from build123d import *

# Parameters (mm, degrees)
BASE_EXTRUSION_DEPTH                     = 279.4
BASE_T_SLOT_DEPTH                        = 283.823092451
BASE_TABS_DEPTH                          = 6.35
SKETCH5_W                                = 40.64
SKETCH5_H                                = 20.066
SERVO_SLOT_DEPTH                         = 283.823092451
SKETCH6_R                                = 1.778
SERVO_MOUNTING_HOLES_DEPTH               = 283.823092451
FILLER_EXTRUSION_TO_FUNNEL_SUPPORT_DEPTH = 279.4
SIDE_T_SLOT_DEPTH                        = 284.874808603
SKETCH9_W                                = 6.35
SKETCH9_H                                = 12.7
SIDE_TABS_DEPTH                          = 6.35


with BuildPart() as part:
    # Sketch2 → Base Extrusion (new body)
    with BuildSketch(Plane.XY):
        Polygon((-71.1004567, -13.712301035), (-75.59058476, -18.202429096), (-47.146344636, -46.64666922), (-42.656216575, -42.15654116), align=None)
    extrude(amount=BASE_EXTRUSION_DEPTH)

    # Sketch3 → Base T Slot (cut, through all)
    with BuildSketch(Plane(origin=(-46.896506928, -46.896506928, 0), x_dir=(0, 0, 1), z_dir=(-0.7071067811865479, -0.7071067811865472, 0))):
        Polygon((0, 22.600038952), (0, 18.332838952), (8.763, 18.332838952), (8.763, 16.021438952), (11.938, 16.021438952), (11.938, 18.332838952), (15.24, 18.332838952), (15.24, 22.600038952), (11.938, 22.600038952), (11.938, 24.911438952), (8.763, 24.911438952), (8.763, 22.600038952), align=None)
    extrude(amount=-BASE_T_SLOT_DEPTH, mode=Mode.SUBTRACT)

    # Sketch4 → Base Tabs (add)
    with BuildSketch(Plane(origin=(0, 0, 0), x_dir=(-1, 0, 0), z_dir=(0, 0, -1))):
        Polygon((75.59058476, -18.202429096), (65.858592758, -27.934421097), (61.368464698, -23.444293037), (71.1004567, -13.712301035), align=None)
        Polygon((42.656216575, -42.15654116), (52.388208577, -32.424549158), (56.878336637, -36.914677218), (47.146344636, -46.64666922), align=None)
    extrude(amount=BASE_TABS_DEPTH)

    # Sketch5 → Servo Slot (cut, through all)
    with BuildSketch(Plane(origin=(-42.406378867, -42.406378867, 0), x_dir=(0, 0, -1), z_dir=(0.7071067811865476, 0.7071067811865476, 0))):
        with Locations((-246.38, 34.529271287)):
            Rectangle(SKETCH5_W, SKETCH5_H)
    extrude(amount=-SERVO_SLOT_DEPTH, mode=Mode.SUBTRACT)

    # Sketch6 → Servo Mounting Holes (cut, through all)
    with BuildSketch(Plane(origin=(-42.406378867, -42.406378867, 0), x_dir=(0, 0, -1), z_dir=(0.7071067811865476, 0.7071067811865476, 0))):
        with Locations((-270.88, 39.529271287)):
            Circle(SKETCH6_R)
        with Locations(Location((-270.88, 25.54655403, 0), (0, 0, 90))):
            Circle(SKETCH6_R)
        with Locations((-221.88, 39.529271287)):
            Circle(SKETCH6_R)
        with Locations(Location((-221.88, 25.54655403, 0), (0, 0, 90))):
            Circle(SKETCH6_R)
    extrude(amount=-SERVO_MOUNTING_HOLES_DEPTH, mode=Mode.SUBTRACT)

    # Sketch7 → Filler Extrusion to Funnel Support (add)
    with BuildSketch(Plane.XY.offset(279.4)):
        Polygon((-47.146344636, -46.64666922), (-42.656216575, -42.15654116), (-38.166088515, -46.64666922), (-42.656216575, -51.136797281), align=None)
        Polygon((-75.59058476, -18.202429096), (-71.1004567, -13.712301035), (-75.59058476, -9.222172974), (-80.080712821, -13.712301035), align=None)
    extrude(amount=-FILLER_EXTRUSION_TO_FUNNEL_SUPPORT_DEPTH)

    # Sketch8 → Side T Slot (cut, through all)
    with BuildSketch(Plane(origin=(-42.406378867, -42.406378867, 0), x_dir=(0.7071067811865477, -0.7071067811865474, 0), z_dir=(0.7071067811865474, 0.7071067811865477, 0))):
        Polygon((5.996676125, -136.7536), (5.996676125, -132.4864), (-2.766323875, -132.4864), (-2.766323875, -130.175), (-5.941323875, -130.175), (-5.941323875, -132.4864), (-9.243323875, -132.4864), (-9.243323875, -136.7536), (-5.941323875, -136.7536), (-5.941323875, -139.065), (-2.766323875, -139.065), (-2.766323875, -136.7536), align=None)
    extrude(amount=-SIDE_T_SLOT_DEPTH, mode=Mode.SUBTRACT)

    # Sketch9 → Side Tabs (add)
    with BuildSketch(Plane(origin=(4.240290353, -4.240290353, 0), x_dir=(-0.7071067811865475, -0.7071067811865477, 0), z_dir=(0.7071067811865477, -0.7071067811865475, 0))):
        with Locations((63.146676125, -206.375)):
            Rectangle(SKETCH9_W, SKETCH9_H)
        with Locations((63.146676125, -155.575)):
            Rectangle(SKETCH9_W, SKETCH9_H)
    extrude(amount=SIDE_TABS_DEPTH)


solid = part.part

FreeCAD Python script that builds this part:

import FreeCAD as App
import Part
import Sketcher
Q = App.Units.Quantity


def add_polygon(sketch, points):
    """Adds a closed chain of lines whose ends are joined by coincident constraints."""
    first, n = sketch.GeometryCount, len(points)
    for a, b in zip(points, points[1:] + points[:1]):
        sketch.addGeometry(Part.LineSegment(App.Vector(*a, 0), App.Vector(*b, 0)), False)
    for i in range(n):
        sketch.addConstraint(Sketcher.Constraint("Coincident", first + i, 2, first + (i + 1) % n, 1))

doc = App.newDocument("Part")
body = doc.addObject("PartDesign::Body", "Body")

# Sketch on XY plane
sketch1 = body.newObject("Sketcher::SketchObject", "Sketch")
sketch1.AttachmentSupport = (doc.getObject("XY_Plane"), [""])
sketch1.MapMode = "FlatFace"
add_polygon(sketch1, [(-71.100457, -13.712301), (-75.590585, -18.202429), (-47.146345, -46.646669), (-42.656217, -42.156541)])  # lines 0-3
sketch1.addConstraint([
    Sketcher.Constraint("Perpendicular", 0, 1),
    Sketcher.Constraint("Perpendicular", 1, 2),
    Sketcher.Constraint("Perpendicular", 2, 3),
    Sketcher.Constraint("Angle", 0, Q("-135 deg")),
    Sketcher.Constraint("Distance", 0, Q("0.25 in")),
    Sketcher.Constraint("DistanceY", 3, 2, -1, 1, Q("13.712301 mm")),
    Sketcher.Constraint("Distance", 1, Q("40.22623 mm")),
    Sketcher.Constraint("DistanceX", 0, 2, -1, 1, Q("75.590585 mm")),
])
pad1 = body.newObject("PartDesign::Pad", "Pad")
pad1.Profile = sketch1
pad1.Length = Q("11 in")

# Sketch on an angled plane
sketch2 = body.newObject("Sketcher::SketchObject", "Sketch001")
sketch2.Placement = App.Placement(App.Vector(-46.896507, -46.896507, 0), App.Rotation(App.Vector(0, 0, 1), App.Vector(-0.707106781, 0.707106781, 0), App.Vector(-0.707106781, -0.707106781, 0), "ZXY"))
add_polygon(sketch2, [(0, 22.600039), (0, 18.332839), (8.763, 18.332839), (8.763, 16.021439), (11.938, 16.021439), (11.938, 18.332839), (15.24, 18.332839), (15.24, 22.600039), (11.938, 22.600039), (11.938, 24.911439), (8.763, 24.911439), (8.763, 22.600039)])  # lines 0-11
sketch2.addConstraint([
    Sketcher.Constraint("Vertical", 0),
    Sketcher.Constraint("Horizontal", 1),
    Sketcher.Constraint("Vertical", 2),
    Sketcher.Constraint("Horizontal", 3),
    Sketcher.Constraint("Vertical", 4),
    Sketcher.Constraint("Horizontal", 5),
    Sketcher.Constraint("Vertical", 6),
    Sketcher.Constraint("Horizontal", 7),
    Sketcher.Constraint("Vertical", 8),
    Sketcher.Constraint("Horizontal", 9),
    Sketcher.Constraint("Vertical", 10),
    Sketcher.Constraint("Horizontal", 11),
    Sketcher.Constraint("PointOnObject", 0, 2, -2),
    Sketcher.Constraint("Horizontal", 1, 2, 4, 2),
    Sketcher.Constraint("Horizontal", 7, 2, 10, 2),
    Sketcher.Constraint("Vertical", 4, 2, 7, 2),
    Sketcher.Constraint("Vertical", 2, 2, 9, 2),
    Sketcher.Constraint("Equal", 4, 8),
    Sketcher.Constraint("DistanceX", 5, 1, 5, 2, Q("0.13 in")),
    Sketcher.Constraint("DistanceX", -1, 1, 5, 2, Q("0.6 in")),
    Sketcher.Constraint("DistanceX", 1, 1, 1, 2, Q("0.345 in")),
    Sketcher.Constraint("DistanceY", 0, 2, 0, 1, Q("0.168 in")),
    Sketcher.Constraint("DistanceY", 2, 2, 2, 1, Q("0.091 in")),
    Sketcher.Constraint("DistanceY", -1, 1, 0, 2, Q("18.332839 mm")),
])
pocket1 = body.newObject("PartDesign::Pocket", "Pocket")
pocket1.Profile = sketch2
pocket1.Type = "ThroughAll"

# Sketch on XY plane
sketch3 = body.newObject("Sketcher::SketchObject", "Sketch002")
sketch3.AttachmentSupport = (doc.getObject("XY_Plane"), [""])
sketch3.MapMode = "FlatFace"
add_polygon(sketch3, [(-65.858593, -27.934421), (-75.590585, -18.202429), (-71.100457, -13.712301), (-61.368465, -23.444293)])  # lines 0-3
add_polygon(sketch3, [(-52.388209, -32.424549), (-42.656217, -42.156541), (-47.146345, -46.646669), (-56.878337, -36.914677)])  # lines 4-7
sketch3.addConstraint([
    Sketcher.Constraint("Perpendicular", 0, 1),
    Sketcher.Constraint("Perpendicular", 1, 2),
    Sketcher.Constraint("Perpendicular", 2, 3),
    Sketcher.Constraint("Perpendicular", 3, 4),
    Sketcher.Constraint("Perpendicular", 4, 5),
    Sketcher.Constraint("Perpendicular", 5, 6),
    Sketcher.Constraint("Perpendicular", 6, 7),
    Sketcher.Constraint("Equal", 2, 4),
    Sketcher.Constraint("Equal", 3, 5),
    Sketcher.Constraint("Angle", 0, Q("135 deg")),
    Sketcher.Constraint("Distance", 1, Q("0.25 in")),
    Sketcher.Constraint("DistanceY", 1, 2, -1, 1, Q("13.712301 mm")),
    Sketcher.Constraint("DistanceY", 3, 2, -1, 1, Q("27.934421 mm")),
    Sketcher.Constraint("DistanceY", 4, 2, -1, 1, Q("42.156541 mm")),
    Sketcher.Constraint("DistanceX", 7, 2, -1, 1, Q("52.388209 mm")),
    Sketcher.Constraint("DistanceX", 2, 2, 4, 2, Q("18.712248 mm")),
])
pad2 = body.newObject("PartDesign::Pad", "Pad001")
pad2.Profile = sketch3
pad2.Length = Q("0.25 in")
pad2.Reversed = True

# Sketch on an angled plane
sketch4 = body.newObject("Sketcher::SketchObject", "Sketch003")
sketch4.Placement = App.Placement(App.Vector(-42.406379, -42.406379, 0), App.Rotation(App.Vector(0, 0, -1), App.Vector(-0.707106781, 0.707106781, 0), App.Vector(0.707106781, 0.707106781, 0), "ZXY"))
add_polygon(sketch4, [(-266.7, 44.562271), (-266.7, 24.496271), (-226.06, 24.496271), (-226.06, 44.562271)])  # lines 0-3
sketch4.addConstraint([
    Sketcher.Constraint("Vertical", 0),
    Sketcher.Constraint("Horizontal", 1),
    Sketcher.Constraint("Vertical", 2),
    Sketcher.Constraint("Horizontal", 3),
    Sketcher.Constraint("DistanceX", 1, 1, 1, 2, Q("1.6 in")),
    Sketcher.Constraint("DistanceY", 0, 2, 0, 1, Q("0.79 in")),
    Sketcher.Constraint("DistanceX", 0, 2, -1, 1, Q("10.5 in")),
    Sketcher.Constraint("DistanceY", -1, 1, 0, 2, Q("24.496271 mm")),
])
pocket2 = body.newObject("PartDesign::Pocket", "Pocket001")
pocket2.Profile = sketch4
pocket2.Type = "ThroughAll"

# Sketch on an angled plane
sketch5 = body.newObject("Sketcher::SketchObject", "Sketch004")
sketch5.Placement = App.Placement(App.Vector(-42.406379, -42.406379, 0), App.Rotation(App.Vector(0, 0, -1), App.Vector(-0.707106781, 0.707106781, 0), App.Vector(0.707106781, 0.707106781, 0), "ZXY"))
sketch5.addGeometry([
    Part.Circle(App.Vector(-270.88, 39.529271, 0), App.Vector(0, 0, 1), 1.778),
    Part.Circle(App.Vector(-270.88, 25.546554, 0), App.Vector(0, 0, 1), 1.778),
    Part.Circle(App.Vector(-221.88, 39.529271, 0), App.Vector(0, 0, 1), 1.778),
    Part.Circle(App.Vector(-221.88, 25.546554, 0), App.Vector(0, 0, 1), 1.778),
], False)
sketch5.addConstraint([
    Sketcher.Constraint("Equal", 0, 1),
    Sketcher.Constraint("Equal", 1, 2),
    Sketcher.Constraint("Equal", 2, 3),
    Sketcher.Constraint("Horizontal", 0, 3, 2, 3),
    Sketcher.Constraint("Horizontal", 1, 3, 3, 3),
    Sketcher.Constraint("Vertical", 0, 3, 1, 3),
    Sketcher.Constraint("Vertical", 2, 3, 3, 3),
    Sketcher.Constraint("Diameter", 0, Q("0.14 in")),
    Sketcher.Constraint("DistanceX", 0, 3, -1, 1, Q("270.88 mm")),
    Sketcher.Constraint("DistanceX", 2, 3, -1, 1, Q("221.88 mm")),
    Sketcher.Constraint("DistanceY", -1, 1, 0, 3, Q("39.529271 mm")),
    Sketcher.Constraint("DistanceY", -1, 1, 1, 3, Q("25.546554 mm")),
])
pocket3 = body.newObject("PartDesign::Pocket", "Pocket002")
pocket3.Profile = sketch5
pocket3.Type = "ThroughAll"

# Sketch on XY plane
sketch6 = body.newObject("Sketcher::SketchObject", "Sketch005")
sketch6.AttachmentSupport = (doc.getObject("XY_Plane"), [""])
sketch6.MapMode = "FlatFace"
sketch6.AttachmentOffset = App.Placement(App.Vector(0, 0, 11 * 25.4), App.Rotation())
add_polygon(sketch6, [(-42.656217, -42.156541), (-47.146345, -46.646669), (-42.656217, -51.136797), (-38.166089, -46.646669)])  # lines 0-3
add_polygon(sketch6, [(-75.590585, -18.202429), (-71.100457, -13.712301), (-75.590585, -9.222173), (-80.080713, -13.712301)])  # lines 4-7
sketch6.addConstraint([
    Sketcher.Constraint("Perpendicular", 0, 1),
    Sketcher.Constraint("Perpendicular", 1, 2),
    Sketcher.Constraint("Perpendicular", 2, 3),
    Sketcher.Constraint("Perpendicular", 3, 4),
    Sketcher.Constraint("Perpendicular", 4, 5),
    Sketcher.Constraint("Perpendicular", 5, 6),
    Sketcher.Constraint("Perpendicular", 6, 7),
    Sketcher.Constraint("Horizontal", 0, 2, 2, 2),
    Sketcher.Constraint("Horizontal", 4, 2, 6, 2),
    Sketcher.Constraint("Vertical", 1, 2, 3, 2),
    Sketcher.Constraint("Equal", 3, 4),
    Sketcher.Constraint("Distance", 0, Q("0.25 in")),
    Sketcher.Constraint("DistanceY", 4, 2, -1, 1, Q("13.712301 mm")),
    Sketcher.Constraint("DistanceY", 0, 2, -1, 1, Q("46.646669 mm")),
    Sketcher.Constraint("DistanceX", 2, 2, -1, 1, Q("38.166089 mm")),
    Sketcher.Constraint("DistanceX", 4, 2, 3, 2, Q("28.44424 mm")),
])
pad3 = body.newObject("PartDesign::Pad", "Pad002")
pad3.Profile = sketch6
pad3.Length = Q("11 in")
pad3.Reversed = True

# Sketch on an angled plane
sketch7 = body.newObject("Sketcher::SketchObject", "Sketch006")
sketch7.Placement = App.Placement(App.Vector(-42.406379, -42.406379, 0), App.Rotation(App.Vector(0.707106781, -0.707106781, 0), App.Vector(0, 0, -0.999999999), App.Vector(0.707106781, 0.707106781, 0), "ZXY"))
add_polygon(sketch7, [(5.996676, -136.7536), (5.996676, -132.4864), (-2.766324, -132.4864), (-2.766324, -130.175), (-5.941324, -130.175), (-5.941324, -132.4864), (-9.243324, -132.4864), (-9.243324, -136.7536), (-5.941324, -136.7536), (-5.941324, -139.065), (-2.766324, -139.065), (-2.766324, -136.7536)])  # lines 0-11
sketch7.addConstraint([
    Sketcher.Constraint("Vertical", 0),
    Sketcher.Constraint("Horizontal", 1),
    Sketcher.Constraint("Vertical", 2),
    Sketcher.Constraint("Horizontal", 3),
    Sketcher.Constraint("Vertical", 4),
    Sketcher.Constraint("Horizontal", 5),
    Sketcher.Constraint("Vertical", 6),
    Sketcher.Constraint("Horizontal", 7),
    Sketcher.Constraint("Vertical", 8),
    Sketcher.Constraint("Horizontal", 9),
    Sketcher.Constraint("Vertical", 10),
    Sketcher.Constraint("Horizontal", 11),
    Sketcher.Constraint("Horizontal", 1, 2, 4, 2),
    Sketcher.Constraint("Horizontal", 7, 2, 10, 2),
    Sketcher.Constraint("Vertical", 4, 2, 7, 2),
    Sketcher.Constraint("Vertical", 2, 2, 9, 2),
    Sketcher.Constraint("Equal", 4, 8),
    Sketcher.Constraint("DistanceX", 5, 2, 5, 1, Q("0.13 in")),
    Sketcher.Constraint("DistanceX", 5, 2, 0, 2, Q("0.6 in")),
    Sketcher.Constraint("DistanceX", 1, 2, 1, 1, Q("0.345 in")),
    Sketcher.Constraint("DistanceY", 0, 1, 0, 2, Q("0.168 in")),
    Sketcher.Constraint("DistanceY", 2, 1, 2, 2, Q("0.091 in")),
    Sketcher.Constraint("DistanceY", 0, 2, -1, 1, Q("5.216 in")),
    Sketcher.Constraint("DistanceX", -1, 1, 0, 2, Q("5.996676 mm")),
])
pocket4 = body.newObject("PartDesign::Pocket", "Pocket003")
pocket4.Profile = sketch7
pocket4.Type = "ThroughAll"

# Sketch on an angled plane
sketch8 = body.newObject("Sketcher::SketchObject", "Sketch007")
sketch8.Placement = App.Placement(App.Vector(4.24029, -4.24029, 0), App.Rotation(App.Vector(-0.707106781, -0.707106781, 0), App.Vector(0, 0, -0.999999999), App.Vector(0.707106781, -0.707106781, 0), "ZXY"))
add_polygon(sketch8, [(59.971676, -200.025), (59.971676, -212.725), (66.321676, -212.725), (66.321676, -200.025)])  # lines 0-3
add_polygon(sketch8, [(59.971676, -149.225), (59.971676, -161.925), (66.321676, -161.925), (66.321676, -149.225)])  # lines 4-7
sketch8.addConstraint([
    Sketcher.Constraint("Vertical", 0),
    Sketcher.Constraint("Horizontal", 1),
    Sketcher.Constraint("Vertical", 2),
    Sketcher.Constraint("Horizontal", 3),
    Sketcher.Constraint("Vertical", 4),
    Sketcher.Constraint("Horizontal", 5),
    Sketcher.Constraint("Vertical", 6),
    Sketcher.Constraint("Horizontal", 7),
    Sketcher.Constraint("Vertical", 3, 2, 4, 2),
    Sketcher.Constraint("Vertical", 2, 2, 5, 2),
    Sketcher.Constraint("Equal", 2, 4),
    Sketcher.Constraint("DistanceY", 0, 2, 0, 1, Q("0.5 in")),
    Sketcher.Constraint("DistanceY", 0, 2, 4, 2, Q("2 in")),
    Sketcher.Constraint("DistanceX", 1, 1, 1, 2, Q("0.25 in")),
    Sketcher.Constraint("DistanceY", 0, 2, -1, 1, Q("8.375 in")),
    Sketcher.Constraint("DistanceX", -1, 1, 0, 2, Q("59.971676 mm")),
])
pad4 = body.newObject("PartDesign::Pad", "Pad003")
pad4.Profile = sketch8
pad4.Length = Q("0.25 in")

doc.recompute()
